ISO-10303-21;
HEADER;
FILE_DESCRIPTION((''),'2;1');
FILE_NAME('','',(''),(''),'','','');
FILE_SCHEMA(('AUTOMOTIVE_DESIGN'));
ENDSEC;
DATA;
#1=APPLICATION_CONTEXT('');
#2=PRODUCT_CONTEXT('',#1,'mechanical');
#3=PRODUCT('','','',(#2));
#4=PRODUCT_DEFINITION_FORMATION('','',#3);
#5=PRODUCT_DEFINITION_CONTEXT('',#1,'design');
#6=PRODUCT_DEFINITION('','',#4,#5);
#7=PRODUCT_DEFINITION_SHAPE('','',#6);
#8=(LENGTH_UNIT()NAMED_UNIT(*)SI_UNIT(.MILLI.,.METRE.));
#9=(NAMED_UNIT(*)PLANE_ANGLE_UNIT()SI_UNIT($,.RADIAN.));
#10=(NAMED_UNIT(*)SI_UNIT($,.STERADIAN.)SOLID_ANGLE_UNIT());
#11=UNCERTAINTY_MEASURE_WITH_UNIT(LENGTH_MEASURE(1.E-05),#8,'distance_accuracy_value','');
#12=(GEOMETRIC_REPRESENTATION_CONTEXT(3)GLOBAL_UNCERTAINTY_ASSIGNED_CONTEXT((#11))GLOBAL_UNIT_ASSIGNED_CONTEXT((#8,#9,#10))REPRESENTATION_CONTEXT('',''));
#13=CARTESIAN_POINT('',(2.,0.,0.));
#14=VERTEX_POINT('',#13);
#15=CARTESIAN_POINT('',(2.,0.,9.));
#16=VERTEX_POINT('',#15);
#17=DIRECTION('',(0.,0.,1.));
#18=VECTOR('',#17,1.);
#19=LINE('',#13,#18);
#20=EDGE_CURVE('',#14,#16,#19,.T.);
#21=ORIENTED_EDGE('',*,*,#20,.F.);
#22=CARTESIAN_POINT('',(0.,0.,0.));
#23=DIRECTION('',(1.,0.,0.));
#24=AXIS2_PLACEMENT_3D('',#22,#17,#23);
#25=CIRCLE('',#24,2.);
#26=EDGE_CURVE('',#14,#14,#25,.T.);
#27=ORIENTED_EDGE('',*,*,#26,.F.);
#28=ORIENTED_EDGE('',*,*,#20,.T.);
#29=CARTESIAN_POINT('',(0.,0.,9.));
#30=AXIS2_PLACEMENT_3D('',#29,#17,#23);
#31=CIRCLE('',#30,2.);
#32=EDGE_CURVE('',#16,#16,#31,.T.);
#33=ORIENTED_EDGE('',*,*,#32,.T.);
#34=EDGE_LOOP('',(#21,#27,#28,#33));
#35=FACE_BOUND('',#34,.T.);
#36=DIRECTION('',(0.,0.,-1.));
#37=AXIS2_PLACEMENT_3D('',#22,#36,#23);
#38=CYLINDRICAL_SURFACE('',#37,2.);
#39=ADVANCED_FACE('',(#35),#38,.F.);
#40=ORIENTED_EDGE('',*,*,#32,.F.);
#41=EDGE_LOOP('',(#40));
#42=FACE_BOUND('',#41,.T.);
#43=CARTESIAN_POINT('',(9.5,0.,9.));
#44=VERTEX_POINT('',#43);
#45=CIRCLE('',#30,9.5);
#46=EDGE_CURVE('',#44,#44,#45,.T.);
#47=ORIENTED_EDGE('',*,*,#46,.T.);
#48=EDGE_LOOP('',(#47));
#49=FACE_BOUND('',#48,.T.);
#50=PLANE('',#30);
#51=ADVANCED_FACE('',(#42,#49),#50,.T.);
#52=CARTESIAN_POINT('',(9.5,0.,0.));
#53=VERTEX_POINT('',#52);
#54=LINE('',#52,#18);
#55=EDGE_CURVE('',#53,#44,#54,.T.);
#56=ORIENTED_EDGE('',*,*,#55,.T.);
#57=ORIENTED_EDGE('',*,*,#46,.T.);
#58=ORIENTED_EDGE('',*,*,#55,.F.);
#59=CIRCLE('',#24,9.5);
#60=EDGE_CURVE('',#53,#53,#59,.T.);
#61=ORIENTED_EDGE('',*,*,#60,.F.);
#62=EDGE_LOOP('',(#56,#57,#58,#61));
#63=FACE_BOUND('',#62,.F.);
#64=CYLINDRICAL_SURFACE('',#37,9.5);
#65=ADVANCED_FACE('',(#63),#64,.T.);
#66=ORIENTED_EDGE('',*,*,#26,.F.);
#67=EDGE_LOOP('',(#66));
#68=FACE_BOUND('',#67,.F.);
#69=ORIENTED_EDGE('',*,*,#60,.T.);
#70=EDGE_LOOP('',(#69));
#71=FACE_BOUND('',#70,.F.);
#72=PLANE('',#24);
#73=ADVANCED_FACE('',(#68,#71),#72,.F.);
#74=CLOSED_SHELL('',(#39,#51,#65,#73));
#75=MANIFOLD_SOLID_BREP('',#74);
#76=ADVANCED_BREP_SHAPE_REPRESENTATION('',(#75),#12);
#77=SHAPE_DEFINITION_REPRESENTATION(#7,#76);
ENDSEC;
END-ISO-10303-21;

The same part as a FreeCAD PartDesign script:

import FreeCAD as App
import Part
import Sketcher
from FreeCAD import Vector

doc = App.newDocument("Part")
body = doc.addObject("PartDesign::Body", "Body")

# Sketch on XY plane
sketch1 = body.newObject("Sketcher::SketchObject", "Sketch")
sketch1.AttachmentSupport = (doc.getObject("XY_Plane"), [""])
sketch1.MapMode = "FlatFace"
sketch1.addGeometry(Part.Circle(Vector(0, 0, 0), Vector(0, 0, 1), 9.5), False)
sketch1.addGeometry(Part.Circle(Vector(0, 0, 0), Vector(0, 0, 1), 2), False)
sketch1.addConstraint(Sketcher.Constraint("Coincident", 0, 3, -1, 1))
sketch1.addConstraint(Sketcher.Constraint("Coincident", 1, 3, -1, 1))
sketch1.addConstraint(Sketcher.Constraint("Diameter", 0, 19.0))
sketch1.addConstraint(Sketcher.Constraint("Diameter", 1, 4.0))
pad1 = body.newObject("PartDesign::Pad", "Pad")
pad1.Profile = sketch1
pad1.Length = 9

doc.recompute()
